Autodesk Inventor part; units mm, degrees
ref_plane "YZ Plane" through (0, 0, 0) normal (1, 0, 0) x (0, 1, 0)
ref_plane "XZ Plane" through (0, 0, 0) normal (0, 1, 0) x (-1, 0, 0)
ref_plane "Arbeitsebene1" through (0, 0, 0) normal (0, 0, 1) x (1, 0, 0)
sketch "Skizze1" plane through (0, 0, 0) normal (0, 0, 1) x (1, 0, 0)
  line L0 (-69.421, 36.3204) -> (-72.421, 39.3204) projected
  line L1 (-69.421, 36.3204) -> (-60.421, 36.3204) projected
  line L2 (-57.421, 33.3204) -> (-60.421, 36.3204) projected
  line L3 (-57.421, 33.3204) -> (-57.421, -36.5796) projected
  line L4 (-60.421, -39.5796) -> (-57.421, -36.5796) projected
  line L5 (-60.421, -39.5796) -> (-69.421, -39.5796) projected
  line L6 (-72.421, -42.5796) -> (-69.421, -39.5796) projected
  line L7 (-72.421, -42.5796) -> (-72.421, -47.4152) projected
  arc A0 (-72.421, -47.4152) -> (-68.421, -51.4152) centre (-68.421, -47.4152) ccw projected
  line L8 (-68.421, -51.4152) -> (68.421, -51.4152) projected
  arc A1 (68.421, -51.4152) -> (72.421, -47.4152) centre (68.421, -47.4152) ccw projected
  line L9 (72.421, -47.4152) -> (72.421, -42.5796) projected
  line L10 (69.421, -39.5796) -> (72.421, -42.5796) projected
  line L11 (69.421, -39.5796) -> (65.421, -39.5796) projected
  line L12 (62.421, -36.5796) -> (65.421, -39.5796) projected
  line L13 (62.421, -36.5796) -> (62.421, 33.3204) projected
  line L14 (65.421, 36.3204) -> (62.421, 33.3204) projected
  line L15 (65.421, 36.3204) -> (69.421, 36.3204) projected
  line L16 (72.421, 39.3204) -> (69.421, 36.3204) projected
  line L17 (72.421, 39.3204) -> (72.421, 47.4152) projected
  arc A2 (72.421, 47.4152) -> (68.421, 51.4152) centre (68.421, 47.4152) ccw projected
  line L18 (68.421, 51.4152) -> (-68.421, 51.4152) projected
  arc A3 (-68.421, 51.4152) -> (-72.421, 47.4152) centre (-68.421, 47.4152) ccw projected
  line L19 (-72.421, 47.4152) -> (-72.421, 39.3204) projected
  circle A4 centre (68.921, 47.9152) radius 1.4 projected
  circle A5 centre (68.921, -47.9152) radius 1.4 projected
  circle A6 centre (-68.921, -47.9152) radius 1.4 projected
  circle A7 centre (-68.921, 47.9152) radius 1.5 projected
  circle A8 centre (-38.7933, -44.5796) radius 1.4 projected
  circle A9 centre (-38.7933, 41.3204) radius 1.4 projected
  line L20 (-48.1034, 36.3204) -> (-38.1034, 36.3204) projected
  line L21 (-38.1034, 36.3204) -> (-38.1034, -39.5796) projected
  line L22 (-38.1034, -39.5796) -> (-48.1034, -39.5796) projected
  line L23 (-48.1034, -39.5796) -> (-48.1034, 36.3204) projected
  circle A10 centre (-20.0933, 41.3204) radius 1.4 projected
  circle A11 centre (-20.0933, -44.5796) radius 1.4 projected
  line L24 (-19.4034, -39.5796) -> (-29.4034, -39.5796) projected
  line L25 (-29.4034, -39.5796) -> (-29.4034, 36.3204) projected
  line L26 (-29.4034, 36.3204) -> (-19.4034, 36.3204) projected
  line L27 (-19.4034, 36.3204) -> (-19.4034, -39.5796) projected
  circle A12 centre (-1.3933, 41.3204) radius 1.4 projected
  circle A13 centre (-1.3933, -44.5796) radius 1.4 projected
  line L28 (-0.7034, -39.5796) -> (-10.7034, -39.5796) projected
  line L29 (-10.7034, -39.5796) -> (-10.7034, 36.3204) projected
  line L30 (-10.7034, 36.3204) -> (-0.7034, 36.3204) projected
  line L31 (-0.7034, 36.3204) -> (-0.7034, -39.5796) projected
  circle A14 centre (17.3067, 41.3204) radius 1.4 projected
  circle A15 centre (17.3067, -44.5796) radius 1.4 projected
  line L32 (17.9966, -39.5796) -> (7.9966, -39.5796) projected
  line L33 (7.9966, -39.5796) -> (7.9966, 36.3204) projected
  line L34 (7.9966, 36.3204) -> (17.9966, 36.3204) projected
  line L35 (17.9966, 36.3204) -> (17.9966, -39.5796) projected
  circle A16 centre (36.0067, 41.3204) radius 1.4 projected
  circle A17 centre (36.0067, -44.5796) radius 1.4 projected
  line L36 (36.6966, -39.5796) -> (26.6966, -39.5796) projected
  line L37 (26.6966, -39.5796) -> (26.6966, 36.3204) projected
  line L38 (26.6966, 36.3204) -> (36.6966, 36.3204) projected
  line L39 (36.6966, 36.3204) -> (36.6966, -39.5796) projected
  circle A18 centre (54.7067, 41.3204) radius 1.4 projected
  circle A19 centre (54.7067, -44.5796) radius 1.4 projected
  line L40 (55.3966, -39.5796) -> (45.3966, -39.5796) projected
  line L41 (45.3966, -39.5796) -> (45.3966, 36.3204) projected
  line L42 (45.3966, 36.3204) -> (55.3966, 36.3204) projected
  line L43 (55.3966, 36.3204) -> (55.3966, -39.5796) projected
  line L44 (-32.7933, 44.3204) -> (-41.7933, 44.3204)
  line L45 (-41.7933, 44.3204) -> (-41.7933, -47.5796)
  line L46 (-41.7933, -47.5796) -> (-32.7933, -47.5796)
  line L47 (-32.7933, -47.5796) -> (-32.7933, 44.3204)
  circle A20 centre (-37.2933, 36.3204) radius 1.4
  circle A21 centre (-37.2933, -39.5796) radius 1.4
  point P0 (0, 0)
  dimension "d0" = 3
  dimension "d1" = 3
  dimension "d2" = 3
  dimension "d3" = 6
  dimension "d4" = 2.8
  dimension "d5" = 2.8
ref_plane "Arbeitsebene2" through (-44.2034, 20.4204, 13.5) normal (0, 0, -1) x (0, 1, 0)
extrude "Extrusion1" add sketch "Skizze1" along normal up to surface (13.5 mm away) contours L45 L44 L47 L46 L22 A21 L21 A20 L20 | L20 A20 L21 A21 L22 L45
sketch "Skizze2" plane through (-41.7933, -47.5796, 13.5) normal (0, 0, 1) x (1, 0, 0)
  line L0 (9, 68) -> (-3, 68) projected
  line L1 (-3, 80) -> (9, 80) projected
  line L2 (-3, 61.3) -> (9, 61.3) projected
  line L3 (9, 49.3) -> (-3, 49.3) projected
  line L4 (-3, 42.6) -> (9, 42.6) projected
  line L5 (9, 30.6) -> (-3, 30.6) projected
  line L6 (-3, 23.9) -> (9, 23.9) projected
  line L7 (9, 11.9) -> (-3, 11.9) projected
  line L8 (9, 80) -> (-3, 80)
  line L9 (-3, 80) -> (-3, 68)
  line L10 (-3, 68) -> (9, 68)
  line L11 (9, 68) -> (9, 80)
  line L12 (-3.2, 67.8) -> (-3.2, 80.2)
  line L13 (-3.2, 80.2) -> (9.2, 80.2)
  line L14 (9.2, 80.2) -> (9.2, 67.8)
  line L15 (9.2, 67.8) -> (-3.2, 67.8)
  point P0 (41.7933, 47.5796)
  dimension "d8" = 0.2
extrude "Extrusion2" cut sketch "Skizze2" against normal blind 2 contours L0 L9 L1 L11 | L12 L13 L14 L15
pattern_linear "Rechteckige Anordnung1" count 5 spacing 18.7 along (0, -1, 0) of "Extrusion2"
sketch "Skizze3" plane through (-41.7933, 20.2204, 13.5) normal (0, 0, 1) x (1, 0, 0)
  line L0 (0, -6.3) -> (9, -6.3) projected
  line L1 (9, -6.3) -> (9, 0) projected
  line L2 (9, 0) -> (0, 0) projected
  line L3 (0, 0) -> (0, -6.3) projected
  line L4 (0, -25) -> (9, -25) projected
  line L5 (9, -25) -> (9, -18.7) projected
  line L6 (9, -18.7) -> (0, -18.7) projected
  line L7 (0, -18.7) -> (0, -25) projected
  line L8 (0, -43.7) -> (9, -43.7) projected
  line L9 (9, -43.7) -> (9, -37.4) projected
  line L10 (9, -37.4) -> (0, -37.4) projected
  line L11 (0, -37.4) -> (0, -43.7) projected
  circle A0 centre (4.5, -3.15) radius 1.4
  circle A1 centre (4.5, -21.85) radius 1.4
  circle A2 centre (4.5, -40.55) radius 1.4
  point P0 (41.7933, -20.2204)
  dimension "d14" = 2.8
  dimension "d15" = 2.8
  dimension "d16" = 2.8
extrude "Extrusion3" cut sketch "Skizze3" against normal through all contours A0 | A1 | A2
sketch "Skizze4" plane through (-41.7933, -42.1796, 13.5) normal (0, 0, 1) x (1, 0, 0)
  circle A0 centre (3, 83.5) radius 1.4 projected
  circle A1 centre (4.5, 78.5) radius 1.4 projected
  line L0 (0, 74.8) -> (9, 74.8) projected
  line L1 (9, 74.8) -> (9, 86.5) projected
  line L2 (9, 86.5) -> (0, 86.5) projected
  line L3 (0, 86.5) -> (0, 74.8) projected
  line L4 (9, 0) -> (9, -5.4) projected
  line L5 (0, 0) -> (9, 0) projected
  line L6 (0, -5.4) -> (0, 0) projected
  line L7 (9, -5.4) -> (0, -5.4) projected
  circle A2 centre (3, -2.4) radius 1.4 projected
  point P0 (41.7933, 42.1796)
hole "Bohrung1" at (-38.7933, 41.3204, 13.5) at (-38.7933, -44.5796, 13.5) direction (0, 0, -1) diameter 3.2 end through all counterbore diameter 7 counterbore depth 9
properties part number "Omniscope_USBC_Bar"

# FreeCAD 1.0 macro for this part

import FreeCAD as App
import Part
import Sketcher

doc = App.newDocument("Part")
body = doc.addObject("PartDesign::Body", "Body")

# Sketch on XY plane
sketch1 = doc.addObject("Sketcher::SketchObject", "Sketch")
body.addObject(sketch1)
sketch1.AttachmentSupport = (doc.XY_Plane, [""])
sketch1.MapMode = "FlatFace"
sketch1.addGeometry(Part.LineSegment(App.Vector(-41.7933, 44.3204, 0), App.Vector(-41.7933, -47.5796, 0)), False)
sketch1.addGeometry(Part.LineSegment(App.Vector(-41.7933, -47.5796, 0), App.Vector(-32.7933, -47.5796, 0)), False)
sketch1.addGeometry(Part.LineSegment(App.Vector(-32.7933, -47.5796, 0), App.Vector(-32.7933, 44.3204, 0)), False)
sketch1.addGeometry(Part.LineSegment(App.Vector(-32.7933, 44.3204, 0), App.Vector(-41.7933, 44.3204, 0)), False)
sketch1.addGeometry(Part.Circle(App.Vector(-37.2933, -39.5796, 0), App.Vector(0, 0, 1), 1.4), False)
sketch1.addGeometry(Part.Circle(App.Vector(-37.2933, 36.3204, 0), App.Vector(0, 0, 1), 1.4), False)
sketch1.addGeometry(Part.Circle(App.Vector(-38.7933, -44.5796, 0), App.Vector(0, 0, 1), 1.4), False)
sketch1.addGeometry(Part.Circle(App.Vector(-38.7933, 41.3204, 0), App.Vector(0, 0, 1), 1.4), False)
sketch1.addConstraint(Sketcher.Constraint("Coincident", 0, 2, 1, 1))
sketch1.addConstraint(Sketcher.Constraint("Coincident", 1, 2, 2, 1))
sketch1.addConstraint(Sketcher.Constraint("Coincident", 2, 2, 3, 1))
sketch1.addConstraint(Sketcher.Constraint("Coincident", 3, 2, 0, 1))
sketch1.addConstraint(Sketcher.Constraint("Vertical", 0))
sketch1.addConstraint(Sketcher.Constraint("Horizontal", 1))
sketch1.addConstraint(Sketcher.Constraint("Vertical", 2))
sketch1.addConstraint(Sketcher.Constraint("Horizontal", 3))
sketch1.addConstraint(Sketcher.Constraint("Equal", 4, 5))
sketch1.addConstraint(Sketcher.Constraint("Equal", 5, 6))
sketch1.addConstraint(Sketcher.Constraint("Equal", 6, 7))
sketch1.addConstraint(Sketcher.Constraint("Vertical", 4, 3, 5, 3))
sketch1.addConstraint(Sketcher.Constraint("Vertical", 6, 3, 7, 3))
sketch1.addConstraint(Sketcher.Constraint("Diameter", 4, 2.8))
sketch1.addConstraint(Sketcher.Constraint("DistanceX", 0, 2, 6, 3, 3.0))
sketch1.addConstraint(Sketcher.Constraint("DistanceY", 0, 2, 6, 3, 3.0))
sketch1.addConstraint(Sketcher.Constraint("DistanceX", 6, 3, 1, 2, 6.0))
sketch1.addConstraint(Sketcher.Constraint("DistanceY", 7, 3, 2, 2, 3.0))
sketch1.addConstraint(Sketcher.Constraint("DistanceY", 0, 2, 0, 1, 91.9))
sketch1.addConstraint(Sketcher.Constraint("DistanceY", 6, 3, 4, 3, 5.0))
sketch1.addConstraint(Sketcher.Constraint("DistanceY", 5, 3, 7, 3, 5.0))
sketch1.addConstraint(Sketcher.Constraint("DistanceX", 6, 3, 4, 3, 1.5))
sketch1.addConstraint(Sketcher.Constraint("DistanceX", 4, 3, -1, 1, 37.2933))
sketch1.addConstraint(Sketcher.Constraint("DistanceY", 4, 3, -1, 1, 39.5796))
pad1 = doc.addObject("PartDesign::Pad", "Pad")
body.addObject(pad1)
pad1.Profile = sketch1
pad1.Length = 13.5

# Sketch on XY plane
sketch2 = doc.addObject("Sketcher::SketchObject", "Sketch001")
body.addObject(sketch2)
sketch2.AttachmentSupport = (doc.XY_Plane, [""])
sketch2.MapMode = "FlatFace"
sketch2.AttachmentOffset = App.Placement(App.Vector(0, 0, 13.5), App.Rotation())
sketch2.addGeometry(Part.LineSegment(App.Vector(-44.9933, 32.6204, 0), App.Vector(-44.9933, 20.2204, 0)), False)
sketch2.addGeometry(Part.LineSegment(App.Vector(-44.9933, 20.2204, 0), App.Vector(-32.5933, 20.2204, 0)), False)
sketch2.addGeometry(Part.LineSegment(App.Vector(-32.5933, 20.2204, 0), App.Vector(-32.5933, 32.6204, 0)), False)
sketch2.addGeometry(Part.LineSegment(App.Vector(-32.5933, 32.6204, 0), App.Vector(-44.9933, 32.6204, 0)), False)
sketch2.addConstraint(Sketcher.Constraint("Coincident", 0, 2, 1, 1))
sketch2.addConstraint(Sketcher.Constraint("Coincident", 1, 2, 2, 1))
sketch2.addConstraint(Sketcher.Constraint("Coincident", 2, 2, 3, 1))
sketch2.addConstraint(Sketcher.Constraint("Coincident", 3, 2, 0, 1))
sketch2.addConstraint(Sketcher.Constraint("Vertical", 0))
sketch2.addConstraint(Sketcher.Constraint("Horizontal", 1))
sketch2.addConstraint(Sketcher.Constraint("Vertical", 2))
sketch2.addConstraint(Sketcher.Constraint("Horizontal", 3))
sketch2.addConstraint(Sketcher.Constraint("Equal", 3, 0))
sketch2.addConstraint(Sketcher.Constraint("DistanceX", 1, 1, 1, 2, 12.4))
sketch2.addConstraint(Sketcher.Constraint("DistanceX", 0, 2, -1, 1, 44.9933))
sketch2.addConstraint(Sketcher.Constraint("DistanceY", -1, 1, 0, 2, 20.2204))
pocket1 = doc.addObject("PartDesign::Pocket", "Pocket")
body.addObject(pocket1)
pocket1.Profile = sketch2
pocket1.Length = 2
doc.recompute()

linearpattern = doc.addObject("PartDesign::LinearPattern", "LinearPattern")
body.addObject(linearpattern)
linearpattern.Originals = [pocket1]
linearpattern.Direction = (doc.Y_Axis, [""])
linearpattern.Mode = "offset"
linearpattern.Offset = 18.7
linearpattern.Occurrences = 5
linearpattern.Reversed = True
body.Tip = linearpattern

# Sketch on XY plane
sketch3 = doc.addObject("Sketcher::SketchObject", "Sketch002")
body.addObject(sketch3)
sketch3.AttachmentSupport = (doc.XY_Plane, [""])
sketch3.MapMode = "FlatFace"
sketch3.AttachmentOffset = App.Placement(App.Vector(0, 0, 13.5), App.Rotation())
sketch3.addGeometry(Part.Circle(App.Vector(-37.2933, 17.0704, 0), App.Vector(0, 0, 1), 1.4), False)
sketch3.addGeometry(Part.Circle(App.Vector(-37.2933, -1.6296, 0), App.Vector(0, 0, 1), 1.4), False)
sketch3.addGeometry(Part.Circle(App.Vector(-37.2933, -20.3296, 0), App.Vector(0, 0, 1), 1.4), False)
sketch3.addConstraint(Sketcher.Constraint("Equal", 0, 1))
sketch3.addConstraint(Sketcher.Constraint("Equal", 1, 2))
sketch3.addConstraint(Sketcher.Constraint("Vertical", 0, 3, 1, 3))
sketch3.addConstraint(Sketcher.Constraint("Vertical", 1, 3, 2, 3))
sketch3.addConstraint(Sketcher.Constraint("Diameter", 0, 2.8))
sketch3.addConstraint(Sketcher.Constraint("DistanceY", 1, 3, 0, 3, 18.7))
sketch3.addConstraint(Sketcher.Constraint("DistanceY", 2, 3, 1, 3, 18.7))
sketch3.addConstraint(Sketcher.Constraint("DistanceX", 0, 3, -1, 1, 37.2933))
sketch3.addConstraint(Sketcher.Constraint("DistanceY", -1, 1, 0, 3, 17.0704))
pocket2 = doc.addObject("PartDesign::Pocket", "Pocket001")
body.addObject(pocket2)
pocket2.Profile = sketch3
pocket2.Type = "ThroughAll"

# Sketch on XY plane
sketch4 = doc.addObject("Sketcher::SketchObject", "Sketch003")
body.addObject(sketch4)
sketch4.AttachmentSupport = (doc.XY_Plane, [""])
sketch4.MapMode = "FlatFace"
sketch4.AttachmentOffset = App.Placement(App.Vector(0, 0, 13.5), App.Rotation())
sketch4.addGeometry(Part.Circle(App.Vector(-38.7933, 41.3204, 0), App.Vector(0, 0, 1), 1.6), False)
sketch4.addGeometry(Part.Circle(App.Vector(-38.7933, -44.5796, 0), App.Vector(0, 0, 1), 1.6), False)
sketch4.addConstraint(Sketcher.Constraint("Equal", 0, 1))
sketch4.addConstraint(Sketcher.Constraint("Vertical", 0, 3, 1, 3))
sketch4.addConstraint(Sketcher.Constraint("Diameter", 0, 3.2))
sketch4.addConstraint(Sketcher.Constraint("DistanceY", 1, 3, 0, 3, 85.9))
sketch4.addConstraint(Sketcher.Constraint("DistanceX", 0, 3, -1, 1, 38.7933))
sketch4.addConstraint(Sketcher.Constraint("DistanceY", -1, 1, 0, 3, 41.3204))
doc.recompute()
hole = doc.addObject("PartDesign::Hole", "Hole")
body.addObject(hole)
hole.Profile = sketch4
hole.ThreadType = "None"
hole.Diameter = 3.2
hole.DepthType = "ThroughAll"
hole.HoleCutType = "Counterbore"
hole.HoleCutDiameter = 7
hole.HoleCutDepth = 9

doc.recompute()
